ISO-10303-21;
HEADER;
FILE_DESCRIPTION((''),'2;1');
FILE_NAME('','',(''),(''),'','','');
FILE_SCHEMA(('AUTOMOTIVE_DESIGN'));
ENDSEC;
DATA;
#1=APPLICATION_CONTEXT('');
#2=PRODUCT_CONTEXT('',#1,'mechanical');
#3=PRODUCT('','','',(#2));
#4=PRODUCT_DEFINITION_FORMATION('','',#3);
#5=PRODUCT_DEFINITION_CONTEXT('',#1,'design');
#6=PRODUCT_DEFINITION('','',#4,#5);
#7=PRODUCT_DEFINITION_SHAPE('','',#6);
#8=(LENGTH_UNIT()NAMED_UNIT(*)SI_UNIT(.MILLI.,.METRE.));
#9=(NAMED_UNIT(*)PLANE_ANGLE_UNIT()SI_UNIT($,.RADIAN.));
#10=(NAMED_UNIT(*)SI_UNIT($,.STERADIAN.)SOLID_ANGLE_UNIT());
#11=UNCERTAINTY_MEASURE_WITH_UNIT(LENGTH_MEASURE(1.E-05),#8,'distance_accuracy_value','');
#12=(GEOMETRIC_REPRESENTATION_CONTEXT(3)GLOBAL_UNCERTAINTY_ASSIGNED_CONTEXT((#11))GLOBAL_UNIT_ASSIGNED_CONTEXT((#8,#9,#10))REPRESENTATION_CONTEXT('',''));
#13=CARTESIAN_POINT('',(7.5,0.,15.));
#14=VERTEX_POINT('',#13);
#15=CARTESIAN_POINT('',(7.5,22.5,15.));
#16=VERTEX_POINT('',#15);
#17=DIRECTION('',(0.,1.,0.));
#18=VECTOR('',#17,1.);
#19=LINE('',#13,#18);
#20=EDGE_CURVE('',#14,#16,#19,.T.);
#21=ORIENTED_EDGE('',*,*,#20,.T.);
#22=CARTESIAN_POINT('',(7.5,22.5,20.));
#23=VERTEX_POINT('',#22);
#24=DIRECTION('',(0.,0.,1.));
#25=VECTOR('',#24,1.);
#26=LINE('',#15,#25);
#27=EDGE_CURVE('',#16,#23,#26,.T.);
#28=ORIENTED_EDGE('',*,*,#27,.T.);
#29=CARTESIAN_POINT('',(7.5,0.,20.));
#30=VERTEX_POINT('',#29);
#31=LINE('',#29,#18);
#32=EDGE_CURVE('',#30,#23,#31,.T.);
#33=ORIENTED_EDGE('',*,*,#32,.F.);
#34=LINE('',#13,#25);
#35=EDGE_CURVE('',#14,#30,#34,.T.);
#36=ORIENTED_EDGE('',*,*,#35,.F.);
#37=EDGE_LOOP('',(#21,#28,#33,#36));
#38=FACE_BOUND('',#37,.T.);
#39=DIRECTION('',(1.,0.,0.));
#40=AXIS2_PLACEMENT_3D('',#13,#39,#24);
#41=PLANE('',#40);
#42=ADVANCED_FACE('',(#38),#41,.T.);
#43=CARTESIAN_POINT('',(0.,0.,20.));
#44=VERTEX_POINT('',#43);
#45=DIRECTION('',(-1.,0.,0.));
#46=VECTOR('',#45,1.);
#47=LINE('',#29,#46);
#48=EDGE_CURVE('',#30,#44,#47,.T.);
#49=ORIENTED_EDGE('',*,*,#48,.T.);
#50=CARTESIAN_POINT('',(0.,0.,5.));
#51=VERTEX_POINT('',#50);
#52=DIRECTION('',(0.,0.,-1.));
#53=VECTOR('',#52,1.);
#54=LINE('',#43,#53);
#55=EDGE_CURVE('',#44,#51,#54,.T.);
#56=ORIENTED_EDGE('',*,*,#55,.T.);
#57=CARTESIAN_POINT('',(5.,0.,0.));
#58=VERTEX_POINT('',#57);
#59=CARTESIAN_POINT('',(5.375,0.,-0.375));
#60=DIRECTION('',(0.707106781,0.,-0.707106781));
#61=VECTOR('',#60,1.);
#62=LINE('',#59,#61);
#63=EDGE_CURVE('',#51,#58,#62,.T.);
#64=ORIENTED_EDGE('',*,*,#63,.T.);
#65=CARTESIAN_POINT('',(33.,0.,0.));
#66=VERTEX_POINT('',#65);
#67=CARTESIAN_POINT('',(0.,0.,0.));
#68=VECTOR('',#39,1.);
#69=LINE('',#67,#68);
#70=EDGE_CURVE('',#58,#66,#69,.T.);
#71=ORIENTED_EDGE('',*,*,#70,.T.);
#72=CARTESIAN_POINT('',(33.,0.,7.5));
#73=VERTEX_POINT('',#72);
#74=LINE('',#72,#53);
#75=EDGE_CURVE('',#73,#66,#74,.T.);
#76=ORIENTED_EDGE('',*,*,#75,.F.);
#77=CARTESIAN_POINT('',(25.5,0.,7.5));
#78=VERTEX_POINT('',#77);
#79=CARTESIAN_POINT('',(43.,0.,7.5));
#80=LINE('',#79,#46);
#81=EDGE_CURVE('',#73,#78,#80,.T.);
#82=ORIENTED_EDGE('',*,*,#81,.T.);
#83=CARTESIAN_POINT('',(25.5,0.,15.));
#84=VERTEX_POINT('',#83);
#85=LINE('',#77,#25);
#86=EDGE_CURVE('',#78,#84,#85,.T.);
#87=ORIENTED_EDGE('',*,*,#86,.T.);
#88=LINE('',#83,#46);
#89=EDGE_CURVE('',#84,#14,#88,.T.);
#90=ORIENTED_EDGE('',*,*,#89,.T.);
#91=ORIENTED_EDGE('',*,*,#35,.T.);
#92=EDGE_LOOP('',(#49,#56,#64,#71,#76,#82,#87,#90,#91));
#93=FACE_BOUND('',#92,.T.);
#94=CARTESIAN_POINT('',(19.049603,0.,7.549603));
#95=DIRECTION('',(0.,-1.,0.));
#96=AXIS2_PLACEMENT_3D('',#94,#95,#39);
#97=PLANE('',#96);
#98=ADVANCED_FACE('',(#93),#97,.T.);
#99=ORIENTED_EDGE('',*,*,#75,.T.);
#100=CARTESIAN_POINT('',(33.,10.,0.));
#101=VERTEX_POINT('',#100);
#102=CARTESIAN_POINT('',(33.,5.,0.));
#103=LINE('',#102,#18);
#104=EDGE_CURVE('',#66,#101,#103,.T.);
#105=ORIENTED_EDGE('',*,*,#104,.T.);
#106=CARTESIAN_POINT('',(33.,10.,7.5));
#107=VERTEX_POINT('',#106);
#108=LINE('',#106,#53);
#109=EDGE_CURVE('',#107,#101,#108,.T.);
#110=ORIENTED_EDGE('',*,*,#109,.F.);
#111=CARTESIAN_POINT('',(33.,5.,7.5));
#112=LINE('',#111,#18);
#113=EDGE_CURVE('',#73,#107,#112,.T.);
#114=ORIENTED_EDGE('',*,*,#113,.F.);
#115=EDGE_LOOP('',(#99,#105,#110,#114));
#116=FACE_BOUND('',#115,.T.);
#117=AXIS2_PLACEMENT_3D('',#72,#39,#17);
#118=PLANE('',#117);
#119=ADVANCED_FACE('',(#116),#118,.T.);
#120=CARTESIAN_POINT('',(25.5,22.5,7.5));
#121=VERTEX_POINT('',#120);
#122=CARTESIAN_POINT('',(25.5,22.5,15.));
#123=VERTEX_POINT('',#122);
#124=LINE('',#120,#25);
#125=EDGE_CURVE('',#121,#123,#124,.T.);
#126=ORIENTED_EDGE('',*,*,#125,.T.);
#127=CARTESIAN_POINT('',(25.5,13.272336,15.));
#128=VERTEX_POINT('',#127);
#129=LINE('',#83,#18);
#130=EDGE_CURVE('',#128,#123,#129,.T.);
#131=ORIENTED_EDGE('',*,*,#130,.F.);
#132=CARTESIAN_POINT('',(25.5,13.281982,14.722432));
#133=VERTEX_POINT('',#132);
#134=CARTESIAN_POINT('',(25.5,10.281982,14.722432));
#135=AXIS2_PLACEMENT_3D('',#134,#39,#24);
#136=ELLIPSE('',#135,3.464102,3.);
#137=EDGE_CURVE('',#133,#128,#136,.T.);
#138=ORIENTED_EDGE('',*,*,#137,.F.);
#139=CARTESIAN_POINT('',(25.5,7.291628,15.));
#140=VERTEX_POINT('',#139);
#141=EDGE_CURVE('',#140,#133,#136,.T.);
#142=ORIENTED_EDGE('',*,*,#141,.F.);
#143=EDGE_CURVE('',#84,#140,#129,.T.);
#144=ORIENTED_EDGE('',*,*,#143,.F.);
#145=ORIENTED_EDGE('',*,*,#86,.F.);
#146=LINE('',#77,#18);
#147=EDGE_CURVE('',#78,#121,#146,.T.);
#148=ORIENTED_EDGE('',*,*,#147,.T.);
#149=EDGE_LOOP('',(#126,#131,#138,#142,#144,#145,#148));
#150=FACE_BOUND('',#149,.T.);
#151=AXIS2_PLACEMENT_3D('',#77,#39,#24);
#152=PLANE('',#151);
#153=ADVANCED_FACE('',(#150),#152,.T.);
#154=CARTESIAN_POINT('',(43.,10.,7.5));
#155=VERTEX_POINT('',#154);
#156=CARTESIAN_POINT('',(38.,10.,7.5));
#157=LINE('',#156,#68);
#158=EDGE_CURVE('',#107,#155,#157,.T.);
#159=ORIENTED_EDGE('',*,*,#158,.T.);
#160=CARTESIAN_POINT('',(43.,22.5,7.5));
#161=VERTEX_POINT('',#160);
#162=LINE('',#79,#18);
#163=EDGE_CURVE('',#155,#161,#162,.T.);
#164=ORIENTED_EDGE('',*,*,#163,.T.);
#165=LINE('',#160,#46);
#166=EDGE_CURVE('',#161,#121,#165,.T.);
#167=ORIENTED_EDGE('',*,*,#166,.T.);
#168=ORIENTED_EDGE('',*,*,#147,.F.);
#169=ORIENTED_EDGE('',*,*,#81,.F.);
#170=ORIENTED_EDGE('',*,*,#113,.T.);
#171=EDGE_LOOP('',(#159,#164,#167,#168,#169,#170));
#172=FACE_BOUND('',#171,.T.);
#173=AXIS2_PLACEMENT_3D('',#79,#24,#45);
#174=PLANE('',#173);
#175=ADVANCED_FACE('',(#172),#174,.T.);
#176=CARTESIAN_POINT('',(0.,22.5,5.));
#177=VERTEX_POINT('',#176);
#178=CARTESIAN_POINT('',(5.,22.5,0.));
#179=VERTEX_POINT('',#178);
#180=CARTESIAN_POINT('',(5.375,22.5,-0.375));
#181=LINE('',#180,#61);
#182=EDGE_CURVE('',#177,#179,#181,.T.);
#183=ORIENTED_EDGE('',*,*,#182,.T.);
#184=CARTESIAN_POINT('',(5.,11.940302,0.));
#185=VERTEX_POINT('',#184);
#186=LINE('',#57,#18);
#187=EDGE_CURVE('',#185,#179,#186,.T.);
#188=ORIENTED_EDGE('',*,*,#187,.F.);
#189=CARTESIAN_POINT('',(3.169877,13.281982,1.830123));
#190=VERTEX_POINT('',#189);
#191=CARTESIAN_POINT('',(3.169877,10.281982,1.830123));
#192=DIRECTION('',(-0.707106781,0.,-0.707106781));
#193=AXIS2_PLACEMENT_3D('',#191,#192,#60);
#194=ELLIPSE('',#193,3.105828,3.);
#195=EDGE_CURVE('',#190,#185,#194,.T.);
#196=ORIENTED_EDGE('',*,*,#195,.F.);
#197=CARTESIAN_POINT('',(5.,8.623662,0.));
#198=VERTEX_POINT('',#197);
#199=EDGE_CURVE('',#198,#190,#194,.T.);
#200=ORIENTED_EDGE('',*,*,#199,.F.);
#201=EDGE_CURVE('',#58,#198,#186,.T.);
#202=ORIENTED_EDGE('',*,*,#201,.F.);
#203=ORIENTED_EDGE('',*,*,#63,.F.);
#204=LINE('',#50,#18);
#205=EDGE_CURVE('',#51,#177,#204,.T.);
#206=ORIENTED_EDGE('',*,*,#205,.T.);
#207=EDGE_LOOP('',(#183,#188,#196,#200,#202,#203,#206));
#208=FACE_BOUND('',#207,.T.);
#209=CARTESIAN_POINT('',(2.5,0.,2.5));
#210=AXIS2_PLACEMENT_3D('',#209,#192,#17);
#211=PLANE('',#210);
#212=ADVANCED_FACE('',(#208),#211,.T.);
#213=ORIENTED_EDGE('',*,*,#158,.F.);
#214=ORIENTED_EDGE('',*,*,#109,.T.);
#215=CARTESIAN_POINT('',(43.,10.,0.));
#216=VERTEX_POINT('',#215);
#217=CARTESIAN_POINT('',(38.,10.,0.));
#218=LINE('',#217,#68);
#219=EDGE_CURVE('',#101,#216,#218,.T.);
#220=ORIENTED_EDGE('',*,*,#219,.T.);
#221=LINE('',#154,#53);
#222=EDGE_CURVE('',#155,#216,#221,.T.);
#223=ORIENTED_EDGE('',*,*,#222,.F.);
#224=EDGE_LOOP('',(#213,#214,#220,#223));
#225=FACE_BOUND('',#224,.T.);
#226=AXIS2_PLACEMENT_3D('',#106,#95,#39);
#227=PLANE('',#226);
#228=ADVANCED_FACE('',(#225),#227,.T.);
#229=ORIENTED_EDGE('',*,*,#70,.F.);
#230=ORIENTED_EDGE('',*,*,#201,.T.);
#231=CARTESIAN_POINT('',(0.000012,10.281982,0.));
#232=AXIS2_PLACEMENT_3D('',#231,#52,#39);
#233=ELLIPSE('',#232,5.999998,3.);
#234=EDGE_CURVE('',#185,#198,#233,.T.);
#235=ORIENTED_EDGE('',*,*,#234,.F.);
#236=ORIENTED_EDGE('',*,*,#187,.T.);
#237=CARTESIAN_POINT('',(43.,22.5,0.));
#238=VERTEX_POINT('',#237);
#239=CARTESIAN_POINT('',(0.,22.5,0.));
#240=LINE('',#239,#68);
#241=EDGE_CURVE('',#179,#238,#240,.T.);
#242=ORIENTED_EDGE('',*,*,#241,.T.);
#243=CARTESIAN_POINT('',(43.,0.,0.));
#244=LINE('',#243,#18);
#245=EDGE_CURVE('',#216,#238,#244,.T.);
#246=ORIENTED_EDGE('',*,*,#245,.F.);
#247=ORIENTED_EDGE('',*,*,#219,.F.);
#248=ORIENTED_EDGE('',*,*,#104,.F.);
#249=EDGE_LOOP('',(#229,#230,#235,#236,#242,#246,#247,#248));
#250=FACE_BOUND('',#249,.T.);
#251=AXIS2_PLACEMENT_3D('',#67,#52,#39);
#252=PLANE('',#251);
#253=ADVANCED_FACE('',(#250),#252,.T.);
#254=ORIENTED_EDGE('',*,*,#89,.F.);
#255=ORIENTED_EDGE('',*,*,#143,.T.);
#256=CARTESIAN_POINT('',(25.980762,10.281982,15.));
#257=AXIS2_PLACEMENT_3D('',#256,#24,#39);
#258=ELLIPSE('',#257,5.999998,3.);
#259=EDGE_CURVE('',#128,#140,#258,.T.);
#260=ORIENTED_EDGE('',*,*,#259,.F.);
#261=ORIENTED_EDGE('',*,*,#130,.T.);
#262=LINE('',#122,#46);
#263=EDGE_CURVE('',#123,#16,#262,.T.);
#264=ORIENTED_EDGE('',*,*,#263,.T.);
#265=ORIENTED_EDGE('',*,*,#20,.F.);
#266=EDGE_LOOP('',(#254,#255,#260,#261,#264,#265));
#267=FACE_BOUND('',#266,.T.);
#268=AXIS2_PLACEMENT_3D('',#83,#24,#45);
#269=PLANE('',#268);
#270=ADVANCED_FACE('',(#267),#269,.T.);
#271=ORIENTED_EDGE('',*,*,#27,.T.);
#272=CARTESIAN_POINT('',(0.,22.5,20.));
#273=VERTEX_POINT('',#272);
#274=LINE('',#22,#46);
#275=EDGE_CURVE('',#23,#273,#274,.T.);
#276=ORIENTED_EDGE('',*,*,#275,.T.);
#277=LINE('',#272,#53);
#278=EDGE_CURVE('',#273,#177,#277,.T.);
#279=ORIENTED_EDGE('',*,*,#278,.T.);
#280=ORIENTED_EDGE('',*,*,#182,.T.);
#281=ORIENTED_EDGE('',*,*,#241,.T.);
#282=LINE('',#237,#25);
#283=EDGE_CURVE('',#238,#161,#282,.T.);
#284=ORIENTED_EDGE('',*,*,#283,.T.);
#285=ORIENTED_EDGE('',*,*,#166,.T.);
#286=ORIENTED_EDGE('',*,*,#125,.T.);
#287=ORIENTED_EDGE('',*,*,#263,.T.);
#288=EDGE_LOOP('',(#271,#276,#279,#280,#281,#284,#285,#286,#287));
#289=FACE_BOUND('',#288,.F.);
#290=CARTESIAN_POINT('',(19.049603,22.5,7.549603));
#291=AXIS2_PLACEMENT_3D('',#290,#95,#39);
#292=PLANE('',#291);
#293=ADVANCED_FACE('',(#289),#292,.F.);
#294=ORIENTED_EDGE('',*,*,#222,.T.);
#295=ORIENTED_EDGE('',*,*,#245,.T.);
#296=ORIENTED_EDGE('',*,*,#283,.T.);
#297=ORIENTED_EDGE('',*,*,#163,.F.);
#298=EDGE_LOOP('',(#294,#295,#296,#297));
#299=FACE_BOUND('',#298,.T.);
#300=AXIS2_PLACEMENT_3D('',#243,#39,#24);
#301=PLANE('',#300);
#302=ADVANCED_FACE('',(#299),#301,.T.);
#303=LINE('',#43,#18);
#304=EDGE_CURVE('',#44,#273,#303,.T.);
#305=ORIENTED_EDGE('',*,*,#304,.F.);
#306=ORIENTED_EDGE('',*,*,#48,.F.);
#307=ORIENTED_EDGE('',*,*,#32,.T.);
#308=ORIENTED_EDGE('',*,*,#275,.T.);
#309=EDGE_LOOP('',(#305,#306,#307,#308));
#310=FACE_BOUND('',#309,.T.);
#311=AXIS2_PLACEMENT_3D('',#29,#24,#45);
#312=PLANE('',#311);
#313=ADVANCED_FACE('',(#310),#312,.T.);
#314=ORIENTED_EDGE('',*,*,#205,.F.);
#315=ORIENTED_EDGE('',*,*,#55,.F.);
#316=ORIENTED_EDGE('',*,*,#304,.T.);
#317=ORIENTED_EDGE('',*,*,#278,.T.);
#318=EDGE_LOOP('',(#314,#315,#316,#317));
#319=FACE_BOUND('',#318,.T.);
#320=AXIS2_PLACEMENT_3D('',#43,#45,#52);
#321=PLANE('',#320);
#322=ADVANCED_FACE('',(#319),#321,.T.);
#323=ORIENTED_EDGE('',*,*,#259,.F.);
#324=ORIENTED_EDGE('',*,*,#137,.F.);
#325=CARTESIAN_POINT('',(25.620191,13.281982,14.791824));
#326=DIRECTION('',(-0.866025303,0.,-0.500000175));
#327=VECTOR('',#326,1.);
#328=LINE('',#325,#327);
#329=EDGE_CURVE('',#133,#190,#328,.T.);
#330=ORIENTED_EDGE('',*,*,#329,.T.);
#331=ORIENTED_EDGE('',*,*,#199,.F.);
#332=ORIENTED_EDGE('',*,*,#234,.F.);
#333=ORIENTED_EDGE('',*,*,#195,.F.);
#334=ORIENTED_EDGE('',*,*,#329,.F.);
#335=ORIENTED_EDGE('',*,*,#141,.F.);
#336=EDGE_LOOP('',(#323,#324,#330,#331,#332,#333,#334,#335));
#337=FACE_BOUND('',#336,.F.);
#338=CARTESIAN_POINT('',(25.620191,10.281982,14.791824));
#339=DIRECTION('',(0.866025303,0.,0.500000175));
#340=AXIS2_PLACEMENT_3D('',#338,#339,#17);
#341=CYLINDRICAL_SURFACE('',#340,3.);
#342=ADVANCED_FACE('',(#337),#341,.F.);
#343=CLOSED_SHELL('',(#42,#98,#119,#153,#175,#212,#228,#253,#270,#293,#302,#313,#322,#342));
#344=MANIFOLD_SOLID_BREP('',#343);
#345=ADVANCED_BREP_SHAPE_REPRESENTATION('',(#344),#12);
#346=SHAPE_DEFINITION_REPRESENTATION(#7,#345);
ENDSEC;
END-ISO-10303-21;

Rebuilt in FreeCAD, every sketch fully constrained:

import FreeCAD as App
import Part
import Sketcher

V = App.Vector


def edges_at(feature, points):
    """Names of the edges that pass closest to the given points."""
    edges = feature.Shape.Edges
    near = lambda p: min(range(len(edges)), key=lambda i: edges[i].distToShape(Part.Vertex(*p))[0])
    return sorted({f"Edge{near(p) + 1}" for p in points})

doc = App.newDocument("Part")
body = doc.addObject("PartDesign::Body", "Body")

# Sketch on XZ plane
sketch1 = body.newObject("Sketcher::SketchObject", "Sketch")
sketch1.AttachmentSupport = (doc.getObject("XZ_Plane"), [""])
sketch1.MapMode = "FlatFace"
sketch1.addGeometry(Part.LineSegment(V(0, 20, 0), V(0, 0, 0)), False)
sketch1.addGeometry(Part.LineSegment(V(0, 0, 0), V(43, 0, 0)), False)
sketch1.addGeometry(Part.LineSegment(V(43, 0, 0), V(43, 8, 0)), False)
sketch1.addGeometry(Part.LineSegment(V(43, 8, 0), V(26, 8, 0)), False)
sketch1.addGeometry(Part.LineSegment(V(26, 8, 0), V(26, 15, 0)), False)
sketch1.addGeometry(Part.LineSegment(V(26, 15, 0), V(8, 15, 0)), False)
sketch1.addGeometry(Part.LineSegment(V(8, 15, 0), V(8, 20, 0)), False)
sketch1.addGeometry(Part.LineSegment(V(8, 20, 0), V(0, 20, 0)), False)
sketch1.addConstraint(Sketcher.Constraint("Coincident", 0, 2, 1, 1))
sketch1.addConstraint(Sketcher.Constraint("Coincident", 1, 2, 2, 1))
sketch1.addConstraint(Sketcher.Constraint("Coincident", 2, 2, 3, 1))
sketch1.addConstraint(Sketcher.Constraint("Coincident", 3, 2, 4, 1))
sketch1.addConstraint(Sketcher.Constraint("Coincident", 4, 2, 5, 1))
sketch1.addConstraint(Sketcher.Constraint("Coincident", 5, 2, 6, 1))
sketch1.addConstraint(Sketcher.Constraint("Coincident", 6, 2, 7, 1))
sketch1.addConstraint(Sketcher.Constraint("Coincident", 7, 2, 0, 1))
sketch1.addConstraint(Sketcher.Constraint("Vertical", 0))
sketch1.addConstraint(Sketcher.Constraint("Horizontal", 1))
sketch1.addConstraint(Sketcher.Constraint("Vertical", 2))
sketch1.addConstraint(Sketcher.Constraint("Horizontal", 3))
sketch1.addConstraint(Sketcher.Constraint("Vertical", 4))
sketch1.addConstraint(Sketcher.Constraint("Horizontal", 5))
sketch1.addConstraint(Sketcher.Constraint("Vertical", 6))
sketch1.addConstraint(Sketcher.Constraint("Horizontal", 7))
sketch1.addConstraint(Sketcher.Constraint("Coincident", 0, 2, -1, 1))
sketch1.addConstraint(Sketcher.Constraint("Equal", 7, 2))
sketch1.addConstraint(Sketcher.Constraint("Equal", 2, 4))
sketch1.addConstraint(Sketcher.Constraint("DistanceX", 1, 1, 1, 2, 43.0))
sketch1.addConstraint(Sketcher.Constraint("DistanceX", 5, 2, 5, 1, 18.0))
sketch1.addConstraint(Sketcher.Constraint("DistanceY", 0, 2, 0, 1, 20.0))
sketch1.addConstraint(Sketcher.Constraint("DistanceY", 6, 1, 6, 2, 5.0))
pad1 = body.newObject("PartDesign::Pad", "Pad")
pad1.Profile = sketch1
pad1.Length = 22.5
pad1.Reversed = True

# Sketch on XY plane
sketch2 = body.newObject("Sketcher::SketchObject", "Sketch001")
sketch2.AttachmentSupport = (doc.getObject("XY_Plane"), [""])
sketch2.MapMode = "FlatFace"
sketch2.AttachmentOffset = App.Placement(V(0, 0, 7.5), App.Rotation())
sketch2.addGeometry(Part.LineSegment(V(33, 10, 0), V(33, 0, 0)), False)
sketch2.addGeometry(Part.LineSegment(V(33, 0, 0), V(43, 0, 0)), False)
sketch2.addGeometry(Part.LineSegment(V(43, 0, 0), V(43, 10, 0)), False)
sketch2.addGeometry(Part.LineSegment(V(43, 10, 0), V(33, 10, 0)), False)
sketch2.addConstraint(Sketcher.Constraint("Coincident", 0, 2, 1, 1))
sketch2.addConstraint(Sketcher.Constraint("Coincident", 1, 2, 2, 1))
sketch2.addConstraint(Sketcher.Constraint("Coincident", 2, 2, 3, 1))
sketch2.addConstraint(Sketcher.Constraint("Coincident", 3, 2, 0, 1))
sketch2.addConstraint(Sketcher.Constraint("Vertical", 0))
sketch2.addConstraint(Sketcher.Constraint("Horizontal", 1))
sketch2.addConstraint(Sketcher.Constraint("Vertical", 2))
sketch2.addConstraint(Sketcher.Constraint("Horizontal", 3))
sketch2.addConstraint(Sketcher.Constraint("PointOnObject", 0, 2, -1))
sketch2.addConstraint(Sketcher.Constraint("Equal", 3, 0))
sketch2.addConstraint(Sketcher.Constraint("DistanceX", 1, 1, 1, 2, 10.0))
sketch2.addConstraint(Sketcher.Constraint("DistanceX", -1, 1, 0, 2, 33.0))
pocket1 = body.newObject("PartDesign::Pocket", "Pocket")
pocket1.Profile = sketch2
pocket1.Type = "ThroughAll"
doc.recompute()

chamfer = body.newObject("PartDesign::Chamfer", "Chamfer")
chamfer.Base = (pocket1, edges_at(pocket1, [(0, 11.25, 0)]))
chamfer.Size = 5

# Sketch on an angled plane
sketch3 = body.newObject("Sketcher::SketchObject", "Sketch002")
sketch3.Placement = App.Placement(V(25.620191, 0, 14.791824), App.Rotation(V(0, 1, 0), V(-0.500000175, 0, 0.866025303), V(0.866025303, 0, 0.500000175), "ZXY"))
sketch3.addGeometry(Part.Circle(V(10.3, 0, 0), V(0, 0, 1), 3), False)
sketch3.addConstraint(Sketcher.Constraint("PointOnObject", 0, 3, -1))
sketch3.addConstraint(Sketcher.Constraint("Diameter", 0, 6.0))
sketch3.addConstraint(Sketcher.Constraint("DistanceX", -1, 1, 0, 3, 10.281982))
pocket2 = body.newObject("PartDesign::Pocket", "Pocket001")
pocket2.Profile = sketch3
pocket2.Type = "ThroughAll"

doc.recompute()
